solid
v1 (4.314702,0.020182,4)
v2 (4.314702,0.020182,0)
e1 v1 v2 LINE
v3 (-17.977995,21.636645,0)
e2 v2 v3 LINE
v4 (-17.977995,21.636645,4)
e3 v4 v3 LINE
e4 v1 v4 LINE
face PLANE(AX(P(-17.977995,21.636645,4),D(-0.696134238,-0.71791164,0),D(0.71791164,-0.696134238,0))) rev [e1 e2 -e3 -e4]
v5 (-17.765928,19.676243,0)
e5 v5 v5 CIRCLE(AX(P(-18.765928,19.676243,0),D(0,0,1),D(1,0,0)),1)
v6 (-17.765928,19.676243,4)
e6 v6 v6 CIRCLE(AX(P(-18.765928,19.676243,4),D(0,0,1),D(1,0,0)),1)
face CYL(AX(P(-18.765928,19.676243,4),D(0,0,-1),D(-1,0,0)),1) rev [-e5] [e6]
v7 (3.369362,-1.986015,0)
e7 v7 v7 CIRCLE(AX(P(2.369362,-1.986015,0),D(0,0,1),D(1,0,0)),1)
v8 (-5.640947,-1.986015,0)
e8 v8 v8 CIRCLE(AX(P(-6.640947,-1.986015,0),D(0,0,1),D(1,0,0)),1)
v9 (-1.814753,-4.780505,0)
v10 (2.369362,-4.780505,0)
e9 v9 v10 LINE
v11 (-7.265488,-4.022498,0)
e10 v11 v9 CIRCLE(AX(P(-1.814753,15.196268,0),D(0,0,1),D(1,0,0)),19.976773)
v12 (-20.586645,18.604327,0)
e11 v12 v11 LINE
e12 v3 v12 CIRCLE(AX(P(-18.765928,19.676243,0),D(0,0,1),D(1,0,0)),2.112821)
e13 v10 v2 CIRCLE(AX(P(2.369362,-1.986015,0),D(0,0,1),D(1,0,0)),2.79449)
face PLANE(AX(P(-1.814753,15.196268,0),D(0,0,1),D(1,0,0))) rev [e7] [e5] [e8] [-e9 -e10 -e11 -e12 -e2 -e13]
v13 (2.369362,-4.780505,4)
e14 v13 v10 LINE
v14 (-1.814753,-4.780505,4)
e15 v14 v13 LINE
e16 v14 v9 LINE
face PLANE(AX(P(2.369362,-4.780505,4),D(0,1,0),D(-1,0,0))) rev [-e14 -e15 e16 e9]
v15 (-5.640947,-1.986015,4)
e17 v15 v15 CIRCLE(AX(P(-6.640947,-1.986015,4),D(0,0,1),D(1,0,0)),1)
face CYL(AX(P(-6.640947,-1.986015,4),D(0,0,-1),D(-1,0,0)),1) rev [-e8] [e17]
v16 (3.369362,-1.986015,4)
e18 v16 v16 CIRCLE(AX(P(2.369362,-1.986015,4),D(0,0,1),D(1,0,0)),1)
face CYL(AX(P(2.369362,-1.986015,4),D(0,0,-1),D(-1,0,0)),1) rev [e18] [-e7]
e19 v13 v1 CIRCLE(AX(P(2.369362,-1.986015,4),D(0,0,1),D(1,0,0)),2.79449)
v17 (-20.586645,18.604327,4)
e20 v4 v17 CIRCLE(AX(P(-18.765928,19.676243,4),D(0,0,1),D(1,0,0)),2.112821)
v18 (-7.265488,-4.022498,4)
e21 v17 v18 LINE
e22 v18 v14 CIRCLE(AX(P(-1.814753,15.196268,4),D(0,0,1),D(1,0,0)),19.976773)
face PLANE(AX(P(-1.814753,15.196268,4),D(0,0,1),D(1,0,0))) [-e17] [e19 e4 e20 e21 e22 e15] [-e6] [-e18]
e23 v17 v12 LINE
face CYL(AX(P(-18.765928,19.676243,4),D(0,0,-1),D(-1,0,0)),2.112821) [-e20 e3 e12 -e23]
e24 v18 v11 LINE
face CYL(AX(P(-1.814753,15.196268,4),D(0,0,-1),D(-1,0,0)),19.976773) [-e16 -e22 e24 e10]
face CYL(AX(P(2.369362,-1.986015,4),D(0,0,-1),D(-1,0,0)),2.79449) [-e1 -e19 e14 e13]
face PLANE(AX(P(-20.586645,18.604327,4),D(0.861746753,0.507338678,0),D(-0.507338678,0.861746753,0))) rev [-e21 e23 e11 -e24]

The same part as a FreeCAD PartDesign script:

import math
import FreeCAD as App
import Part
import Sketcher

V = App.Vector

doc = App.newDocument("Part")
params = doc.addObject("Spreadsheet::Sheet", "Params")
for row, (alias, value) in enumerate([
    ("sketch1_diameter", "2 mm"),
    ("pad1_length", "4 mm"),
], start=1):
    params.set(f"A{row}", alias)
    params.set(f"B{row}", "=" + value)
    params.setAlias(f"B{row}", alias)

body = doc.addObject("PartDesign::Body", "Body")

sketch1 = doc.addObject("Sketcher::SketchObject", "Sketch")
body.addObject(sketch1)
sketch1.AttachmentSupport = (doc.XY_Plane, [""])
sketch1.MapMode = "FlatFace"
sketch1.addGeometry([
    Part.LineSegment(V(4.3, 0, 0), V(-18, 21.6, 0)),
    Part.ArcOfCircle(Part.Circle(V(-18.8, 19.7, 0), V(0, 0, 1), 2.1), math.radians(68), math.radians(210)),
    Part.LineSegment(V(-20.6, 18.6, 0), V(-7.3, -4, 0)),
    Part.ArcOfCircle(Part.Circle(V(-1.8, 15.2, 0), V(0, 0, 1), 20), math.radians(-105.83), math.radians(-90)),
    Part.LineSegment(V(-1.8, -4.8, 0), V(2.4, -4.8, 0)),
    Part.ArcOfCircle(Part.Circle(V(2.4, -2, 0), V(0, 0, 1), 2.8), math.radians(-90), math.radians(46)),
    Part.Circle(V(2.4, -2, 0), V(0, 0, 1), 1),
    Part.Circle(V(-6.6, -2, 0), V(0, 0, 1), 1),
    Part.Circle(V(-18.8, 19.7, 0), V(0, 0, 1), 1),
], False)
sketch1.addConstraint([
    Sketcher.Constraint("Coincident", 0, 2, 1, 1),
    Sketcher.Constraint("Tangent", 1, 2, 2, 1),
    Sketcher.Constraint("Coincident", 2, 2, 3, 1),
    Sketcher.Constraint("Tangent", 3, 2, 4, 1),
    Sketcher.Constraint("Tangent", 4, 2, 5, 1),
    Sketcher.Constraint("Tangent", 5, 2, 0, 1),
    Sketcher.Constraint("Horizontal", 4),
    Sketcher.Constraint("Coincident", 6, 3, 5, 3),
    Sketcher.Constraint("Coincident", 8, 3, 1, 3),
    Sketcher.Constraint("Equal", 6, 7),
    Sketcher.Constraint("Equal", 7, 8),
    Sketcher.Constraint("Horizontal", 6, 3, 7, 3),
    Sketcher.Constraint("Diameter", 6, 2.0),
    Sketcher.Constraint("Radius", 1, 2.112821),
    Sketcher.Constraint("Radius", 5, 2.79449),
    Sketcher.Constraint("Radius", 3, 19.976773),
    Sketcher.Constraint("DistanceY", 1, 3, 0, 2, 1.960402),
    Sketcher.Constraint("Distance", 2, 26.256931),
    Sketcher.Constraint("DistanceX", 4, 1, 4, 2, 4.184115),
    Sketcher.Constraint("DistanceX", 1, 3, -1, 1, 18.765928),
    Sketcher.Constraint("DistanceX", -1, 1, 5, 3, 2.369362),
    Sketcher.Constraint("DistanceX", 2, 2, -1, 1, 7.265488),
    Sketcher.Constraint("DistanceX", 7, 3, 6, 3, 9.010309),
    Sketcher.Constraint("DistanceY", -1, 1, 1, 3, 19.676243),
])
sketch1.setExpression("Constraints[12]", "Params.sketch1_diameter")
pad1 = doc.addObject("PartDesign::Pad", "Pad")
body.addObject(pad1)
pad1.Profile = sketch1
pad1.setExpression("Length", "Params.pad1_length")

doc.recompute()
